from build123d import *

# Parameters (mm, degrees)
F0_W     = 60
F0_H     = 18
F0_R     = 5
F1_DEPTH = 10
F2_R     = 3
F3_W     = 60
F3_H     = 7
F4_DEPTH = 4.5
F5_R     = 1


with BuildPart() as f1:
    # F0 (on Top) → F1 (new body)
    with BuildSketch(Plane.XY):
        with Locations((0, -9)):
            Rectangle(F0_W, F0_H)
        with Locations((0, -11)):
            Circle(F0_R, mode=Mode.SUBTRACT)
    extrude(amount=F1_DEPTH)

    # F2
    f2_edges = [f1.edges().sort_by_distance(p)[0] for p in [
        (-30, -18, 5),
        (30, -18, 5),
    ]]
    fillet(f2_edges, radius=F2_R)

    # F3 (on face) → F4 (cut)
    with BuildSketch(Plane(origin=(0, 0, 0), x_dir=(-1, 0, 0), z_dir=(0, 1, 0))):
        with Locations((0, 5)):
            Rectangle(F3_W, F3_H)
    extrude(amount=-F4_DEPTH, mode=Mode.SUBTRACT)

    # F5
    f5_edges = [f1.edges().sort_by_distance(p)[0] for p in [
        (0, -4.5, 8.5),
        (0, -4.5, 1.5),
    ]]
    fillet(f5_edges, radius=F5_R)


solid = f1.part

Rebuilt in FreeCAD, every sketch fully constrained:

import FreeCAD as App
import Part
import Sketcher

V = App.Vector
Q = App.Units.Quantity


def edges_at(feature, points):
    """Names of the edges that pass closest to the given points."""
    edges = feature.Shape.Edges
    near = lambda p: min(range(len(edges)), key=lambda i: edges[i].distToShape(Part.Vertex(*p))[0])
    return sorted({f"Edge{near(p) + 1}" for p in points})

doc = App.newDocument("Part")
params = doc.addObject("Spreadsheet::Sheet", "Params")
for row, (alias, value) in enumerate([
    ("sketch1_diameter", "10 mm"),
    ("sketch1_width", "60 mm"),
    ("sketch1_height", "18 mm"),
    ("pad1_length", "10 mm"),
    ("fillet_radius", "3 mm"),
    ("sketch2_width", "60 mm"),
    ("sketch2_height", "7 mm"),
    ("pocket1_length", "4.5 mm"),
    ("fillet2_radius", "1 mm"),
], start=1):
    params.set(f"A{row}", alias)
    params.set(f"B{row}", "=" + value)
    params.setAlias(f"B{row}", alias)

body = doc.addObject("PartDesign::Body", "Body")

# Sketch on XY plane
sketch1 = doc.addObject("Sketcher::SketchObject", "Sketch")
body.addObject(sketch1)
sketch1.AttachmentSupport = (doc.XY_Plane, [""])
sketch1.MapMode = "FlatFace"
sketch1.addGeometry([
    Part.LineSegment(V(-30, 0, 0), V(-30, -18, 0)),  # 0
    Part.LineSegment(V(-30, -18, 0), V(30, -18, 0)),  # 1
    Part.LineSegment(V(30, -18, 0), V(30, 0, 0)),  # 2
    Part.LineSegment(V(30, 0, 0), V(-30, 0, 0)),  # 3
    Part.Circle(V(0, -11, 0), V(0, 0, 1), 5),  # 4
], False)
sketch1.addConstraint([
    Sketcher.Constraint("Coincident", 0, 2, 1, 1),
    Sketcher.Constraint("Coincident", 1, 2, 2, 1),
    Sketcher.Constraint("Coincident", 2, 2, 3, 1),
    Sketcher.Constraint("Coincident", 3, 2, 0, 1),
    Sketcher.Constraint("Vertical", 0),
    Sketcher.Constraint("Horizontal", 1),
    Sketcher.Constraint("Vertical", 2),
    Sketcher.Constraint("Horizontal", 3),
    Sketcher.Constraint("Symmetric", 2, 2, 3, 2, -1, 1),
    Sketcher.Constraint("PointOnObject", 4, 3, -2),
    Sketcher.Constraint("Diameter", 4, Q("10 mm")),
    Sketcher.Constraint("DistanceX", 1, 1, 1, 2, Q("60 mm")),
    Sketcher.Constraint("DistanceY", 0, 2, 0, 1, Q("18 mm")),
    Sketcher.Constraint("DistanceY", 4, 3, -1, 1, Q("11 mm")),
])
sketch1.setExpression("Constraints[10]", "Params.sketch1_diameter")
sketch1.setExpression("Constraints[11]", "Params.sketch1_width")
sketch1.setExpression("Constraints[12]", "Params.sketch1_height")
pad1 = doc.addObject("PartDesign::Pad", "Pad")
body.addObject(pad1)
pad1.Profile = sketch1
pad1.setExpression("Length", "Params.pad1_length")
doc.recompute()

fillet = doc.addObject("PartDesign::Fillet", "Fillet")
body.addObject(fillet)
fillet.Base = (pad1, edges_at(pad1, [(-30, -18, 5), (30, -18, 5)]))
fillet.setExpression("Radius", "Params.fillet_radius")

# Sketch on XZ plane
sketch2 = doc.addObject("Sketcher::SketchObject", "Sketch001")
body.addObject(sketch2)
sketch2.AttachmentSupport = (doc.XZ_Plane, [""])
sketch2.MapMode = "FlatFace"
sketch2.addGeometry([
    Part.LineSegment(V(30, 8.5, 0), V(30, 1.5, 0)),
    Part.LineSegment(V(30, 1.5, 0), V(-30, 1.5, 0)),
    Part.LineSegment(V(-30, 1.5, 0), V(-30, 8.5, 0)),
    Part.LineSegment(V(-30, 8.5, 0), V(30, 8.5, 0)),
], False)
sketch2.addConstraint([
    Sketcher.Constraint("Coincident", 0, 2, 1, 1),
    Sketcher.Constraint("Coincident", 1, 2, 2, 1),
    Sketcher.Constraint("Coincident", 2, 2, 3, 1),
    Sketcher.Constraint("Coincident", 3, 2, 0, 1),
    Sketcher.Constraint("Vertical", 0),
    Sketcher.Constraint("Horizontal", 1),
    Sketcher.Constraint("Vertical", 2),
    Sketcher.Constraint("Horizontal", 3),
    Sketcher.Constraint("DistanceX", 1, 2, 1, 1, Q("60 mm")),
    Sketcher.Constraint("DistanceY", 0, 2, 0, 1, Q("7 mm")),
    Sketcher.Constraint("DistanceX", -1, 1, 0, 2, Q("30 mm")),
    Sketcher.Constraint("DistanceY", -1, 1, 0, 2, Q("1.5 mm")),
])
sketch2.setExpression("Constraints[8]", "Params.sketch2_width")
sketch2.setExpression("Constraints[9]", "Params.sketch2_height")
pocket1 = doc.addObject("PartDesign::Pocket", "Pocket")
body.addObject(pocket1)
pocket1.Profile = sketch2
pocket1.setExpression("Length", "Params.pocket1_length")
pocket1.Reversed = True
doc.recompute()

fillet2 = doc.addObject("PartDesign::Fillet", "Fillet001")
body.addObject(fillet2)
fillet2.Base = (pocket1, edges_at(pocket1, [(0, -4.5, 8.5), (0, -4.5, 1.5)]))
fillet2.setExpression("Radius", "Params.fillet2_radius")

doc.recompute()
